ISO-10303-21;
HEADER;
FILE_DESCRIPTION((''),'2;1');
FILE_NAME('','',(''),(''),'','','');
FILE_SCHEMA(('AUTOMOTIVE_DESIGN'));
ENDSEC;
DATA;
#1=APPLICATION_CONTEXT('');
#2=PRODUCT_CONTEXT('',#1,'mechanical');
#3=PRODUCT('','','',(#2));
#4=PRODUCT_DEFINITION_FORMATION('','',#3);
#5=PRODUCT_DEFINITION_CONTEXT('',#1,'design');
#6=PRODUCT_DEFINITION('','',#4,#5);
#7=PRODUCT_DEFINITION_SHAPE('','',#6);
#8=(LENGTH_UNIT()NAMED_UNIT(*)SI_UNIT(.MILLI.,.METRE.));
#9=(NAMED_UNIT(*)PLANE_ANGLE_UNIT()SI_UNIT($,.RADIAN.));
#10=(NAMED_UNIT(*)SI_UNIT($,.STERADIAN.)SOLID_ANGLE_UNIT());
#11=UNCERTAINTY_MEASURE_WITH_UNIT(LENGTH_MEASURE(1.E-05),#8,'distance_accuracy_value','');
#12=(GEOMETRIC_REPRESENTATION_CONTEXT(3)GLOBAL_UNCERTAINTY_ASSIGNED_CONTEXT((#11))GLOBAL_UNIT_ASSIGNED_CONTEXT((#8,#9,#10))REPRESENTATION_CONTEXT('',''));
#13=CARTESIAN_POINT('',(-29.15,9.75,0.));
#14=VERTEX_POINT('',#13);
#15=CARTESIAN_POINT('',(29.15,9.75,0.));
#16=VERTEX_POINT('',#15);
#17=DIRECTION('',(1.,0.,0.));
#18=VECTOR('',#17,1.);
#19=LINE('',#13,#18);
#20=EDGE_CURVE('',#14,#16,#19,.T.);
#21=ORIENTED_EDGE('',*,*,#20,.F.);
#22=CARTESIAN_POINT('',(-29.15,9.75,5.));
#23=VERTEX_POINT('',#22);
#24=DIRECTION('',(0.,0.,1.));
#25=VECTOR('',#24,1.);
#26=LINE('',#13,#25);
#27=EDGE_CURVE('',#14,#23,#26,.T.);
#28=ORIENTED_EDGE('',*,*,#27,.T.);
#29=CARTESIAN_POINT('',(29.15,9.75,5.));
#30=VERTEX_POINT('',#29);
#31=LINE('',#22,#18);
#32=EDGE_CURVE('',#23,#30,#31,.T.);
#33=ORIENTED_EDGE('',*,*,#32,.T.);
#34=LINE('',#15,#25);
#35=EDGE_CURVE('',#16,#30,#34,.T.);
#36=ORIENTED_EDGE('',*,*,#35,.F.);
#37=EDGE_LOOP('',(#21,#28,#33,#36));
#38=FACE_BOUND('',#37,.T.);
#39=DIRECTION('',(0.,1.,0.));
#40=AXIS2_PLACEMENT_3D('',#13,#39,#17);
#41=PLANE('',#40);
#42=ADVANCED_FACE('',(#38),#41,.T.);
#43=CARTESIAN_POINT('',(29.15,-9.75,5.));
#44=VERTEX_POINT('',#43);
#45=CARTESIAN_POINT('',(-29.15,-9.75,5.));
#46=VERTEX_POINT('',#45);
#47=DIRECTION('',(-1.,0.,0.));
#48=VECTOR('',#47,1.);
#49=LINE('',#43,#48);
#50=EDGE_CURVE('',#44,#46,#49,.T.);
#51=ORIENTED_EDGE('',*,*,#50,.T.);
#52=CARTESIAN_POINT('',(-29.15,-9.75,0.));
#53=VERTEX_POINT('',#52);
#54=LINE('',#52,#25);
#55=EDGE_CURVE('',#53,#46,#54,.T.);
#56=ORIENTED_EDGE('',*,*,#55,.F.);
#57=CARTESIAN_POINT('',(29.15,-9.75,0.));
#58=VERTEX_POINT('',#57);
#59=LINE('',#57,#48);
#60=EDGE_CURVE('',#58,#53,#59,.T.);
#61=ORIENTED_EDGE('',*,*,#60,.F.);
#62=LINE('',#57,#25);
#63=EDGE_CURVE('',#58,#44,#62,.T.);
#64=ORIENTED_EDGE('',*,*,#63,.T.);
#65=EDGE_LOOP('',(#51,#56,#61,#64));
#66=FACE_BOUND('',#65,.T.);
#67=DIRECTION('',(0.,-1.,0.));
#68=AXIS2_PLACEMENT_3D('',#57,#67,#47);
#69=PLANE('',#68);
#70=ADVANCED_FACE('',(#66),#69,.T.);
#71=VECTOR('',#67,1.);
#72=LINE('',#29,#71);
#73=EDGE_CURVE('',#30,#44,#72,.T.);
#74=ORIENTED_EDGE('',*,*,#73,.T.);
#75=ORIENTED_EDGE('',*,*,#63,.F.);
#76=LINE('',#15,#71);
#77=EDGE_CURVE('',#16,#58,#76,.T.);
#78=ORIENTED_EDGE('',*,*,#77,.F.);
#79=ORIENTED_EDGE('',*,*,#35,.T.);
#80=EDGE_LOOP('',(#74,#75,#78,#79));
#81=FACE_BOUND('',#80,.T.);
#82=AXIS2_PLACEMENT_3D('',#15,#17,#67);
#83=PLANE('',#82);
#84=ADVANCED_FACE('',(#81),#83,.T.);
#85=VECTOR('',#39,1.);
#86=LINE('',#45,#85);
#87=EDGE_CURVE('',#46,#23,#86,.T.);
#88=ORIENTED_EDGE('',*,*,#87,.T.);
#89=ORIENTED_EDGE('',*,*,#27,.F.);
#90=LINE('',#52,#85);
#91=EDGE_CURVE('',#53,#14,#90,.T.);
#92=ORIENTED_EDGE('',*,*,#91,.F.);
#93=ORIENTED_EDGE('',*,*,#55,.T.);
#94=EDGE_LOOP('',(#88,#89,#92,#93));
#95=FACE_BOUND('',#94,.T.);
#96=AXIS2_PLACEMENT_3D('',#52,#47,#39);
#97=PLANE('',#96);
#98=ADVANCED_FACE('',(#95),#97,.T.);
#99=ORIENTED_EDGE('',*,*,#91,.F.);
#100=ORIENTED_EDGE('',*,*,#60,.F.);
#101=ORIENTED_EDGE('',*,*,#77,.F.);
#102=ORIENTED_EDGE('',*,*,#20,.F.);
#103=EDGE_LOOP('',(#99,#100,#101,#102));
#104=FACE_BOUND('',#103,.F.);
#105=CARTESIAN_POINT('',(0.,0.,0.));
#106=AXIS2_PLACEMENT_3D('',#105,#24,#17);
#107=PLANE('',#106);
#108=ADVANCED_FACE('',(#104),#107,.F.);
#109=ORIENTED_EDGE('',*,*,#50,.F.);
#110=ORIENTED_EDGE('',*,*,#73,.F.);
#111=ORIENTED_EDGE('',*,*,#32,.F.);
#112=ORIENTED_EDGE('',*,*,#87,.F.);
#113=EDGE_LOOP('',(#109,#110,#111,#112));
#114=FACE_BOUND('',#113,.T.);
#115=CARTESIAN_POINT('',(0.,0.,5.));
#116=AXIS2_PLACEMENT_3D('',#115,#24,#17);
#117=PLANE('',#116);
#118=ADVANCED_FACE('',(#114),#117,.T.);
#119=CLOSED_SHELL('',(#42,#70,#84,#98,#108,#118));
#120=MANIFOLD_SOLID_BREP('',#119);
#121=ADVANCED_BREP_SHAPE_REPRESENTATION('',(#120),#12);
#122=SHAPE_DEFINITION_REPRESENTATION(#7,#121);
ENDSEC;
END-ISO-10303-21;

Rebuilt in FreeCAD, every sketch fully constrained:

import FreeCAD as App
import Part
import Sketcher

V = App.Vector
Q = App.Units.Quantity


def add_polygon(sketch, points):
    """Adds a closed chain of lines whose ends are joined by coincident constraints."""
    first, n = sketch.GeometryCount, len(points)
    for a, b in zip(points, points[1:] + points[:1]):
        sketch.addGeometry(Part.LineSegment(App.Vector(*a, 0), App.Vector(*b, 0)), False)
    for i in range(n):
        sketch.addConstraint(Sketcher.Constraint("Coincident", first + i, 2, first + (i + 1) % n, 1))

doc = App.newDocument("Part")
body = doc.addObject("PartDesign::Body", "Body")

sketch1 = body.newObject("Sketcher::SketchObject", "Sketch")
sketch1.AttachmentSupport = (doc.getObject("XY_Plane"), [""])
sketch1.MapMode = "FlatFace"
add_polygon(sketch1, [(29, 10), (-29, 10), (-29, -10), (29, -10)])
sketch1.addConstraint(Sketcher.Constraint("Horizontal", 0))
sketch1.addConstraint(Sketcher.Constraint("Vertical", 1))
sketch1.addConstraint(Sketcher.Constraint("Horizontal", 2))
sketch1.addConstraint(Sketcher.Constraint("Vertical", 3))
sketch1.addConstraint(Sketcher.Constraint("Symmetric", 0, 2, 2, 2, -1, 1))
sketch1.addConstraint(Sketcher.Constraint("DistanceX", 0, 2, 0, 1, Q("58.3 mm")))
sketch1.addConstraint(Sketcher.Constraint("DistanceY", 1, 2, 1, 1, Q("19.5 mm")))
pad1 = body.newObject("PartDesign::Pad", "Pad")
pad1.Profile = sketch1
pad1.Length = 5

doc.recompute()
